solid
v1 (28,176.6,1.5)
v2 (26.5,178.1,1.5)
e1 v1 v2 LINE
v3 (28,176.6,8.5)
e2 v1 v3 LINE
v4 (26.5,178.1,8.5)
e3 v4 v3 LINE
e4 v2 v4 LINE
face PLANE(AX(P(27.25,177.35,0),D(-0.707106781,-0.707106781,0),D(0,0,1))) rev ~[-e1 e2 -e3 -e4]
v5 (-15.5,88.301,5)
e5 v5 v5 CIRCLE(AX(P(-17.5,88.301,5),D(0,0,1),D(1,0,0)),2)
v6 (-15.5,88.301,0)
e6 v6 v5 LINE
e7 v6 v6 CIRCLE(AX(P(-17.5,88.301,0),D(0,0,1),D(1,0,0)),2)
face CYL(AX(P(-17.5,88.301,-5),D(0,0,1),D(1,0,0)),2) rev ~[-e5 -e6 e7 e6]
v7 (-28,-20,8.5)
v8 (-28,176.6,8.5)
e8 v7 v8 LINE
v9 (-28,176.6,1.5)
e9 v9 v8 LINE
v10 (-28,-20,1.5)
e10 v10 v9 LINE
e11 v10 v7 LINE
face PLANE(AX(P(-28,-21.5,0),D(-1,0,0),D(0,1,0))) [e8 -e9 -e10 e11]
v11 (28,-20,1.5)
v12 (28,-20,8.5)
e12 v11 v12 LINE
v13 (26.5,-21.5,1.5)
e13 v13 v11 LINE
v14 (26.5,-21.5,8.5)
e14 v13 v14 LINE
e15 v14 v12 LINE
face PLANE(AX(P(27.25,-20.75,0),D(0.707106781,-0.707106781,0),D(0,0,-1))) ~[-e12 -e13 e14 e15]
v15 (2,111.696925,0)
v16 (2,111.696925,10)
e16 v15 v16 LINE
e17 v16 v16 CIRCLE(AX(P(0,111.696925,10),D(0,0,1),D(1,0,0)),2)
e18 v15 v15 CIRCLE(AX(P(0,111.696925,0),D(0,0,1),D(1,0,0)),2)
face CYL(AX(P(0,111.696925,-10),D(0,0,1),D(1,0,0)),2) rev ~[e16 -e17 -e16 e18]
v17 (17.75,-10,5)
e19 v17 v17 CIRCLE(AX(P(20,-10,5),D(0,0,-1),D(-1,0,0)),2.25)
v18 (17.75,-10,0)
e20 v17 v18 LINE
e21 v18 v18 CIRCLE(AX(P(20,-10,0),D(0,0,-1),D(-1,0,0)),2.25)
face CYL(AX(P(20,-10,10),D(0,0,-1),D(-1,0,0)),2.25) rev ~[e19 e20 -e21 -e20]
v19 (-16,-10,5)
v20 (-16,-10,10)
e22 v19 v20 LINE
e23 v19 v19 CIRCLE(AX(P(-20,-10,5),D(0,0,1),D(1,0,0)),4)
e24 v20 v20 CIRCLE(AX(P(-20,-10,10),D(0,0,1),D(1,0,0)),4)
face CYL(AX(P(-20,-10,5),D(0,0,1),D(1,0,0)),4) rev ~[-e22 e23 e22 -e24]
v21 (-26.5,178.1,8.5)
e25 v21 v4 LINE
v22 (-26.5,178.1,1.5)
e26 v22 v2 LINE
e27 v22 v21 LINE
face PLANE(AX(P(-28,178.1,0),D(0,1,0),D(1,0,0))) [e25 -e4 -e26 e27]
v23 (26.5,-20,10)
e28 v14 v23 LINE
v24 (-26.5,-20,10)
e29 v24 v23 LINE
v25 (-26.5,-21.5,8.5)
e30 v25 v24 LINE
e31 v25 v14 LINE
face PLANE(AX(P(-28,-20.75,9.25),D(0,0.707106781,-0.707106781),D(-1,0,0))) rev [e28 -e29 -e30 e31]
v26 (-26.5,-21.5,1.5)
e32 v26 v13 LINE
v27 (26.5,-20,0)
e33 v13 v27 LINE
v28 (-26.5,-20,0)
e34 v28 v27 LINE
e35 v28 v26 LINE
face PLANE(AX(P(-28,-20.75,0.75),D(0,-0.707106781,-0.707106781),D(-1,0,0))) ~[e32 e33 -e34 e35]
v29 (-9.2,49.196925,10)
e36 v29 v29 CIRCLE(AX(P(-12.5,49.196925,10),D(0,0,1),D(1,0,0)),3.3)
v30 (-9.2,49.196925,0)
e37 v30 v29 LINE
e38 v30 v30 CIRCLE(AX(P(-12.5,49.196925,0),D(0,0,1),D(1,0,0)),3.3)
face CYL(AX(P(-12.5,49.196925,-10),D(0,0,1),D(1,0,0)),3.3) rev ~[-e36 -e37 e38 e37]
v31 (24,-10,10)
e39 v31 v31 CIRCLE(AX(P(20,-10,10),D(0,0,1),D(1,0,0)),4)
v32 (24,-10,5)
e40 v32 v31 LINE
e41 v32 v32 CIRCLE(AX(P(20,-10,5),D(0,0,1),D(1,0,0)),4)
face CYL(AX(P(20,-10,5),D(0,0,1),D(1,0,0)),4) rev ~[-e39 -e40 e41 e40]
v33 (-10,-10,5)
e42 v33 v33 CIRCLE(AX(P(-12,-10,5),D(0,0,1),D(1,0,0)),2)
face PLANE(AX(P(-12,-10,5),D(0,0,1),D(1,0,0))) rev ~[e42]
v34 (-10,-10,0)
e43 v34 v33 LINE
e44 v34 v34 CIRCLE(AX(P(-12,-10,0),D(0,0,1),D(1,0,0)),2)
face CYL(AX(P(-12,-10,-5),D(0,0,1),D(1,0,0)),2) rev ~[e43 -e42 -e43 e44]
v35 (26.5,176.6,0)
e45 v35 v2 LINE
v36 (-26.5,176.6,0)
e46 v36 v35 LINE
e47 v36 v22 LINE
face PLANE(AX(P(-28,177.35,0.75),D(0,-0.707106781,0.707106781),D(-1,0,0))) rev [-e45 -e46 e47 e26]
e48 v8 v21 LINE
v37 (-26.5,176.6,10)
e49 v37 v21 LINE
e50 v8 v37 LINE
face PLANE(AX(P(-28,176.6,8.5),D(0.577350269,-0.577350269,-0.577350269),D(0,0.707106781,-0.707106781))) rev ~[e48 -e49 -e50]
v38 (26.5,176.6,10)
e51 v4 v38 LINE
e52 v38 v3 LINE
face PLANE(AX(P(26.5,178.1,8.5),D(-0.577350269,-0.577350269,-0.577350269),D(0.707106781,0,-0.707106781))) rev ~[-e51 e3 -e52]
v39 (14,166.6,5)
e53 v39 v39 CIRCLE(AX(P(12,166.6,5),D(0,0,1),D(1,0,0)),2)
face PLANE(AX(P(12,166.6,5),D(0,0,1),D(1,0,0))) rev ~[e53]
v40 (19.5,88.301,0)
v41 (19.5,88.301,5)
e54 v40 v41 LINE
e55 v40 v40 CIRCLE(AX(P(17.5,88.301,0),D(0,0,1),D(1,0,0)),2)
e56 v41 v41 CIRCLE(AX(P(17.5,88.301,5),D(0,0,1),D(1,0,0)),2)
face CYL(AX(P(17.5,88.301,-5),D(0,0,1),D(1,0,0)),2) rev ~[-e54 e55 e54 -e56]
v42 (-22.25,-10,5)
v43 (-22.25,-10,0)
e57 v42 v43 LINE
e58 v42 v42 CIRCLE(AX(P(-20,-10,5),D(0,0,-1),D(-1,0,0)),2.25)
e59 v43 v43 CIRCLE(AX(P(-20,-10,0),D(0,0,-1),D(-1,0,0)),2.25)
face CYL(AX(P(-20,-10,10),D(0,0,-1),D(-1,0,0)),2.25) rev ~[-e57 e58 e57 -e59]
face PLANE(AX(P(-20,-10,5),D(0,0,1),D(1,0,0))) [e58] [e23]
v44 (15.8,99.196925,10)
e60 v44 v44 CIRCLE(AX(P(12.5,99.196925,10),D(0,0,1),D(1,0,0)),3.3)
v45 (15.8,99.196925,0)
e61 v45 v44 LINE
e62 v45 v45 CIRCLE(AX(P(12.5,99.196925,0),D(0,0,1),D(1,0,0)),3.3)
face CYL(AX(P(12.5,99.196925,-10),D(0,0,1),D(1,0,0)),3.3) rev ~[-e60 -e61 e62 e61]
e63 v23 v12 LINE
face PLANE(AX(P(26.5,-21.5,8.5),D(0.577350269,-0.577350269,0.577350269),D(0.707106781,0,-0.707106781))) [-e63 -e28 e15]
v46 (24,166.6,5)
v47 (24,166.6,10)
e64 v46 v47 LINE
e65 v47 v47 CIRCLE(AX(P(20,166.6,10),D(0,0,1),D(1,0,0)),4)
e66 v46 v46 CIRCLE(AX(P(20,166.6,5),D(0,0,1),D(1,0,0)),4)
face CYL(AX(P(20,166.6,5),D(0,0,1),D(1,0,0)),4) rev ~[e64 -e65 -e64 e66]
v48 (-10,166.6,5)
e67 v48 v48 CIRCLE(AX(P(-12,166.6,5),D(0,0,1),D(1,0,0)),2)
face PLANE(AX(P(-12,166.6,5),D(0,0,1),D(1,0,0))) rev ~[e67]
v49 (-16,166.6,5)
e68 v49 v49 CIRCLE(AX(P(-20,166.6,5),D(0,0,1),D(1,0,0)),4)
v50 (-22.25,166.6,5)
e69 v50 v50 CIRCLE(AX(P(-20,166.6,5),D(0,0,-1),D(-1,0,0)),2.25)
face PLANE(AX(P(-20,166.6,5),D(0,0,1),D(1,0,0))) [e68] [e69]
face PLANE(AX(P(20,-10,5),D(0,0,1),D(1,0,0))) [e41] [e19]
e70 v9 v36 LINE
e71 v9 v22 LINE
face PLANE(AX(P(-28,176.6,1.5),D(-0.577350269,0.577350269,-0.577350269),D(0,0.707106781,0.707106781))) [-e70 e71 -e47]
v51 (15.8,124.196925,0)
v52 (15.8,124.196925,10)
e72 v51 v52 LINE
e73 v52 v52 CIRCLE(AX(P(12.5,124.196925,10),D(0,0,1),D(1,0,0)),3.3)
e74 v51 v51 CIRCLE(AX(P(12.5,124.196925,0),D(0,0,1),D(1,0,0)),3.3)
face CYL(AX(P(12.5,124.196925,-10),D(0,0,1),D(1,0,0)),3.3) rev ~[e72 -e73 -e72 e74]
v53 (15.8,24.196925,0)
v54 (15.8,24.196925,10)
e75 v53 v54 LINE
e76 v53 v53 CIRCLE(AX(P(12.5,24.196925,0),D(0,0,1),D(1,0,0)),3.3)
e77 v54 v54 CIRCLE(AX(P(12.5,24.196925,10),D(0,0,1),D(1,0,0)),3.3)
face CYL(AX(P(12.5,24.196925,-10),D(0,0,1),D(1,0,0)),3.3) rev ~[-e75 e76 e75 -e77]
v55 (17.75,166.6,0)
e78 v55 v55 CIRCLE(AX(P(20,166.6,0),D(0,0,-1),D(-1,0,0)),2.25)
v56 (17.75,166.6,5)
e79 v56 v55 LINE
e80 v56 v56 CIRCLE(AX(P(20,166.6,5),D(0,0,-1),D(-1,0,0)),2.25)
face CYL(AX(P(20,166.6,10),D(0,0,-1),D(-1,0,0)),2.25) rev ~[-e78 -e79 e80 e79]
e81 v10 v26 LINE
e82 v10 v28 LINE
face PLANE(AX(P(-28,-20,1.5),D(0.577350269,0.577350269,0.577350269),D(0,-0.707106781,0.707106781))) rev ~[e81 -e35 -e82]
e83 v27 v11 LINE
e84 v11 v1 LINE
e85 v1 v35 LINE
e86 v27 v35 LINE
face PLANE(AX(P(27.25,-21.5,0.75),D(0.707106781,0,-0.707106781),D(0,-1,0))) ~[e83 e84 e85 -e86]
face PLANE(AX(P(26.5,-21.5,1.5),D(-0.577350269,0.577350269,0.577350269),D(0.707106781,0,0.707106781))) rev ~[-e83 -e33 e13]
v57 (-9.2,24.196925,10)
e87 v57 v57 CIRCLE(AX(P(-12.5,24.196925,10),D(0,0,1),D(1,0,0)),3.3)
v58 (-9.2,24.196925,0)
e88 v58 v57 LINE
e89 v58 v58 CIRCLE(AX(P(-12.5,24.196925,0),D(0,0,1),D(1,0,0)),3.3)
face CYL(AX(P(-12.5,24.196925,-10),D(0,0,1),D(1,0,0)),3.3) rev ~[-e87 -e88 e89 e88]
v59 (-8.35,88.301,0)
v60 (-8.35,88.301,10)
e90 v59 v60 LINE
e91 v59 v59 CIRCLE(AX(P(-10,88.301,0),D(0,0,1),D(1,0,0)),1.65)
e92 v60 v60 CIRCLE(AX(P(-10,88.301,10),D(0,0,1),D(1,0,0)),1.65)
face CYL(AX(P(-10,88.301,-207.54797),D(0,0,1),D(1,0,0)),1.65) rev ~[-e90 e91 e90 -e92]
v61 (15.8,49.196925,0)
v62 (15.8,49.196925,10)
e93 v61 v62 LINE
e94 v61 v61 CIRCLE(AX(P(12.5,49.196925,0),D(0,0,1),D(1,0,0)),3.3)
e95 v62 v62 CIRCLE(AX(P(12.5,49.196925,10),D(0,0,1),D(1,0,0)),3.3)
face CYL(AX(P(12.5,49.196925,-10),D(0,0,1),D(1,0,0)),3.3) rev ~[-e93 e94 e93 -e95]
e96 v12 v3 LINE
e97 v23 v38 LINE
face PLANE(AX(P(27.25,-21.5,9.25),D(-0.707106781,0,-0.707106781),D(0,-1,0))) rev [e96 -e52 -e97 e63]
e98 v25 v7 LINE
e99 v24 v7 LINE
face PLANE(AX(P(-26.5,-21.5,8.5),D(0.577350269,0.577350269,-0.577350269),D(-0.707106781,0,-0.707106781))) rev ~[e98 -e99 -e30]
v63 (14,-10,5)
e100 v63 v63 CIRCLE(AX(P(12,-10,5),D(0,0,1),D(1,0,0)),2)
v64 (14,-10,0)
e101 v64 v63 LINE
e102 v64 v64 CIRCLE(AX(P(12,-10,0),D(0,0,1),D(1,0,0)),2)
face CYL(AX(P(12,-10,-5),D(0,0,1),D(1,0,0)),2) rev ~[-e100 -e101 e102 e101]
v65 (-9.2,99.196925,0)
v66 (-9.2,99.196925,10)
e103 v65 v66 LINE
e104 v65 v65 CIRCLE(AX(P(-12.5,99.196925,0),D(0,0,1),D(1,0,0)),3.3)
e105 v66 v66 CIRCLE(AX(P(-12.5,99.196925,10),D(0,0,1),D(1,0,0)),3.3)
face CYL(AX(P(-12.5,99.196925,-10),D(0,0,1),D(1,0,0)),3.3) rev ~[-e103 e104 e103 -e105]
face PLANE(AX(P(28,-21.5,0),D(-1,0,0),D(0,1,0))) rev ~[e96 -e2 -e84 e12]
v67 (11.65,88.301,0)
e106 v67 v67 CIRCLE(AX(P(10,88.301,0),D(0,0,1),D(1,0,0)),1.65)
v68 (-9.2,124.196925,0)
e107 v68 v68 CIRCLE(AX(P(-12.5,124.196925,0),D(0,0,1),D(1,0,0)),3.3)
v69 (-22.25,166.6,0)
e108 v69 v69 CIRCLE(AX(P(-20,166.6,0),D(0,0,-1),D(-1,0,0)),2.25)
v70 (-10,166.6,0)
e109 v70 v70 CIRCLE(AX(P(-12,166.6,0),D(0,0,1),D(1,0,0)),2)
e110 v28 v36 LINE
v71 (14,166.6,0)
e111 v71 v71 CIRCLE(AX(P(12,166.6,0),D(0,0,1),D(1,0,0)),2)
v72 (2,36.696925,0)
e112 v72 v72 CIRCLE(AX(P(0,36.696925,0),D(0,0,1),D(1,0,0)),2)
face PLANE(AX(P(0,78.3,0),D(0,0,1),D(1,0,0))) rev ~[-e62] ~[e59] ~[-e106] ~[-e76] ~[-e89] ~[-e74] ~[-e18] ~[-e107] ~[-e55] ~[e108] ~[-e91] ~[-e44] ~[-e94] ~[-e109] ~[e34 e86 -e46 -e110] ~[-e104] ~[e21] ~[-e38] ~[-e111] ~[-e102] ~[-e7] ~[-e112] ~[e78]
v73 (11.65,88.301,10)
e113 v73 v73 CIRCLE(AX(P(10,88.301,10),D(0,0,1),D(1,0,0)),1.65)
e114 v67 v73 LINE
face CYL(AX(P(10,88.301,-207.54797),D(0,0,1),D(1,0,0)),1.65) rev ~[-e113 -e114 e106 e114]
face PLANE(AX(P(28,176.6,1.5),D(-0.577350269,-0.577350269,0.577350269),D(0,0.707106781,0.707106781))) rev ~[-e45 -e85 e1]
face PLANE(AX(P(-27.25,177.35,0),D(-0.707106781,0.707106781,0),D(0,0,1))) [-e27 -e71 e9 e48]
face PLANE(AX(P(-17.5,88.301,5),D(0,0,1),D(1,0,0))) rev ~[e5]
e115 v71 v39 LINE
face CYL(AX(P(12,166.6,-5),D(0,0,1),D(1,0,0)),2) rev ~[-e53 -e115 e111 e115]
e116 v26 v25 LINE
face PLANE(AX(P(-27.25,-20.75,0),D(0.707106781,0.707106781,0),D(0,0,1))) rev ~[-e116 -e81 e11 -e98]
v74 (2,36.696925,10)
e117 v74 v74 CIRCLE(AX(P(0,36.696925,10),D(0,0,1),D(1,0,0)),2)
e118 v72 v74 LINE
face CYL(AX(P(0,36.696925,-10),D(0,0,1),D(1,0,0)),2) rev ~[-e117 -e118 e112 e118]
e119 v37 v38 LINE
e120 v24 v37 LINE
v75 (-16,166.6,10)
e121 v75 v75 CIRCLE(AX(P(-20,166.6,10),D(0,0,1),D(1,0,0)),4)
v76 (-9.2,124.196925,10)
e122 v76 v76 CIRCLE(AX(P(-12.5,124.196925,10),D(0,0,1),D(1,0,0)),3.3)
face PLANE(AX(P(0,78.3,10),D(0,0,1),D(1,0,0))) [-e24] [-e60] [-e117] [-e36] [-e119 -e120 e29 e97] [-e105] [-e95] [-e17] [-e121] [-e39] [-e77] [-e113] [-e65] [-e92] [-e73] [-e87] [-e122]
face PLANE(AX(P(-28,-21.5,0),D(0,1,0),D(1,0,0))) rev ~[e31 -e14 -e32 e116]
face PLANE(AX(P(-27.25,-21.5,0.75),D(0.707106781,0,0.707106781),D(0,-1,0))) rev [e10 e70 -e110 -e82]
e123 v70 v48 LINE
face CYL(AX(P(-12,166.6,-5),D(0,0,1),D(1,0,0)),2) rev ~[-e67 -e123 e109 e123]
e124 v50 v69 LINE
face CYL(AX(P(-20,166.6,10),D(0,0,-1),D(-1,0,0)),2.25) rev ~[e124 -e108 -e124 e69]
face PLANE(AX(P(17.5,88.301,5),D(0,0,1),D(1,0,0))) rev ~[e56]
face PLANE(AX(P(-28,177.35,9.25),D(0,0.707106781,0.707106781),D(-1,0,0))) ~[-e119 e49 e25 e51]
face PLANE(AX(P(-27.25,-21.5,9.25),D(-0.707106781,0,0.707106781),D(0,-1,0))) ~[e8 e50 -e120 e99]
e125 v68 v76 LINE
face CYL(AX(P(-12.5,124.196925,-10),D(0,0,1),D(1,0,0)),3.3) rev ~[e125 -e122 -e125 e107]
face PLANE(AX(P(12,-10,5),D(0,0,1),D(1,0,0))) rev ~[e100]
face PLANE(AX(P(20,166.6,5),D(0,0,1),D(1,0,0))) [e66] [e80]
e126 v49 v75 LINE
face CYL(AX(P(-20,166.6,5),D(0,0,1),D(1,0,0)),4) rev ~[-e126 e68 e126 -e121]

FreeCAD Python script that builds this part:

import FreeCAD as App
import Part
import Sketcher


def add_polygon(sketch, points):
    """Adds a closed chain of lines whose ends are joined by coincident constraints."""
    first, n = sketch.GeometryCount, len(points)
    for a, b in zip(points, points[1:] + points[:1]):
        sketch.addGeometry(Part.LineSegment(App.Vector(*a, 0), App.Vector(*b, 0)), False)
    for i in range(n):
        sketch.addConstraint(Sketcher.Constraint("Coincident", first + i, 2, first + (i + 1) % n, 1))

doc = App.newDocument("Part")
body = doc.addObject("PartDesign::Body", "Body")

sketch1 = doc.addObject("Sketcher::SketchObject", "Sketch")
body.addObject(sketch1)
sketch1.AttachmentSupport = (doc.XY_Plane, [""])
sketch1.MapMode = "FlatFace"
add_polygon(sketch1, [(-28, 178), (-28, -22), (28, -22), (28, 178)])
sketch1.addConstraint(Sketcher.Constraint("Vertical", 0))
sketch1.addConstraint(Sketcher.Constraint("Horizontal", 1))
sketch1.addConstraint(Sketcher.Constraint("Vertical", 2))
sketch1.addConstraint(Sketcher.Constraint("Horizontal", 3))
sketch1.addConstraint(Sketcher.Constraint("DistanceX", 1, 1, 1, 2, 56.0))
sketch1.addConstraint(Sketcher.Constraint("DistanceY", 0, 2, 0, 1, 199.6))
sketch1.addConstraint(Sketcher.Constraint("DistanceX", 0, 2, -1, 1, 28.0))
sketch1.addConstraint(Sketcher.Constraint("DistanceY", 0, 2, -1, 1, 21.5))
pad1 = doc.addObject("PartDesign::Pad", "Pad")
body.addObject(pad1)
pad1.Profile = sketch1
pad1.Length = 10
doc.recompute()

chamfer = doc.addObject("PartDesign::Chamfer", "Chamfer")
body.addObject(chamfer)
chamfer.Base = (pad1, ["Edge1"])
chamfer.UseAllEdges = True
chamfer.Size = 1.5

sketch2 = doc.addObject("Sketcher::SketchObject", "Sketch001")
body.addObject(sketch2)
sketch2.AttachmentSupport = (doc.XY_Plane, [""])
sketch2.MapMode = "FlatFace"
sketch2.addGeometry(Part.Circle(App.Vector(12, -10, 0), App.Vector(0, 0, 1), 2), False)
sketch2.addGeometry(Part.Circle(App.Vector(-12, -10, 0), App.Vector(0, 0, 1), 2), False)
sketch2.addGeometry(Part.Circle(App.Vector(12, 166.6, 0), App.Vector(0, 0, 1), 2), False)
sketch2.addGeometry(Part.Circle(App.Vector(-12, 166.6, 0), App.Vector(0, 0, 1), 2), False)
sketch2.addConstraint(Sketcher.Constraint("Equal", 0, 1))
sketch2.addConstraint(Sketcher.Constraint("Equal", 1, 2))
sketch2.addConstraint(Sketcher.Constraint("Equal", 2, 3))
sketch2.addConstraint(Sketcher.Constraint("Symmetric", 0, 3, 1, 3, -2))
sketch2.addConstraint(Sketcher.Constraint("Symmetric", 2, 3, 3, 3, -2))
sketch2.addConstraint(Sketcher.Constraint("Vertical", 0, 3, 2, 3))
sketch2.addConstraint(Sketcher.Constraint("Diameter", 0, 4.0))
sketch2.addConstraint(Sketcher.Constraint("DistanceX", -1, 1, 0, 3, 12.0))
sketch2.addConstraint(Sketcher.Constraint("DistanceY", 0, 3, -1, 1, 10.0))
sketch2.addConstraint(Sketcher.Constraint("DistanceY", -1, 1, 2, 3, 166.6))
doc.recompute()
hole = doc.addObject("PartDesign::Hole", "Hole")
body.addObject(hole)
hole.Profile = sketch2
hole.ThreadType = "None"
hole.Diameter = 4
hole.DepthType = "Dimension"
hole.Depth = 5
hole.DrillPoint = "Flat"
hole.Reversed = True

sketch3 = doc.addObject("Sketcher::SketchObject", "Sketch002")
body.addObject(sketch3)
sketch3.AttachmentSupport = (doc.XY_Plane, [""])
sketch3.MapMode = "FlatFace"
sketch3.addGeometry(Part.Circle(App.Vector(12.5, 99.2, 0), App.Vector(0, 0, 1), 3.3), False)
sketch3.addGeometry(Part.Circle(App.Vector(-12.5, 124.2, 0), App.Vector(0, 0, 1), 3.3), False)
sketch3.addGeometry(Part.Circle(App.Vector(12.5, 124.2, 0), App.Vector(0, 0, 1), 3.3), False)
sketch3.addGeometry(Part.Circle(App.Vector(-12.5, 99.2, 0), App.Vector(0, 0, 1), 3.3), False)
sketch3.addGeometry(Part.Circle(App.Vector(12.5, 49.2, 0), App.Vector(0, 0, 1), 3.3), False)
sketch3.addGeometry(Part.Circle(App.Vector(-12.5, 49.2, 0), App.Vector(0, 0, 1), 3.3), False)
sketch3.addGeometry(Part.Circle(App.Vector(-12.5, 24.2, 0), App.Vector(0, 0, 1), 3.3), False)
sketch3.addGeometry(Part.Circle(App.Vector(12.5, 24.2, 0), App.Vector(0, 0, 1), 3.3), False)
sketch3.addConstraint(Sketcher.Constraint("Equal", 0, 1))
sketch3.addConstraint(Sketcher.Constraint("Equal", 1, 2))
sketch3.addConstraint(Sketcher.Constraint("Equal", 2, 3))
sketch3.addConstraint(Sketcher.Constraint("Equal", 3, 4))
sketch3.addConstraint(Sketcher.Constraint("Equal", 4, 5))
sketch3.addConstraint(Sketcher.Constraint("Equal", 5, 6))
sketch3.addConstraint(Sketcher.Constraint("Equal", 6, 7))
sketch3.addConstraint(Sketcher.Constraint("Symmetric", 1, 3, 2, 3, -2))
sketch3.addConstraint(Sketcher.Constraint("Symmetric", 0, 3, 3, 3, -2))
sketch3.addConstraint(Sketcher.Constraint("Symmetric", 4, 3, 5, 3, -2))
sketch3.addConstraint(Sketcher.Constraint("Symmetric", 6, 3, 7, 3, -2))
sketch3.addConstraint(Sketcher.Constraint("Vertical", 0, 3, 2, 3))
sketch3.addConstraint(Sketcher.Constraint("Vertical", 2, 3, 4, 3))
sketch3.addConstraint(Sketcher.Constraint("Vertical", 5, 3, 6, 3))
sketch3.addConstraint(Sketcher.Constraint("Diameter", 0, 6.6))
sketch3.addConstraint(Sketcher.Constraint("DistanceX", 1, 3, 0, 3, 25.0))
sketch3.addConstraint(Sketcher.Constraint("DistanceY", 0, 3, 1, 3, 25.0))
sketch3.addConstraint(Sketcher.Constraint("DistanceY", 4, 3, 0, 3, 50.0))
sketch3.addConstraint(Sketcher.Constraint("DistanceY", 6, 3, 5, 3, 25.0))
sketch3.addConstraint(Sketcher.Constraint("DistanceY", -1, 1, 0, 3, 99.196925))
doc.recompute()
hole2 = doc.addObject("PartDesign::Hole", "Hole001")
body.addObject(hole2)
hole2.Profile = sketch3
hole2.ThreadType = "None"
hole2.Diameter = 6.6
hole2.DepthType = "Dimension"
hole2.Depth = 10
hole2.DrillPoint = "Flat"
hole2.Reversed = True

sketch4 = doc.addObject("Sketcher::SketchObject", "Sketch003")
body.addObject(sketch4)
sketch4.AttachmentSupport = (doc.XY_Plane, [""])
sketch4.MapMode = "FlatFace"
sketch4.addGeometry(Part.Circle(App.Vector(0, 111.7, 0), App.Vector(0, 0, 1), 2), False)
sketch4.addGeometry(Part.Circle(App.Vector(0, 36.7, 0), App.Vector(0, 0, 1), 2), False)
sketch4.addConstraint(Sketcher.Constraint("Equal", 0, 1))
sketch4.addConstraint(Sketcher.Constraint("PointOnObject", 0, 3, -2))
sketch4.addConstraint(Sketcher.Constraint("PointOnObject", 1, 3, -2))
sketch4.addConstraint(Sketcher.Constraint("Diameter", 0, 4.0))
sketch4.addConstraint(Sketcher.Constraint("DistanceY", 1, 3, 0, 3, 75.0))
sketch4.addConstraint(Sketcher.Constraint("DistanceY", -1, 1, 0, 3, 111.696925))
doc.recompute()
hole3 = doc.addObject("PartDesign::Hole", "Hole002")
body.addObject(hole3)
hole3.Profile = sketch4
hole3.ThreadType = "None"
hole3.Diameter = 4
hole3.DepthType = "Dimension"
hole3.Depth = 10
hole3.DrillPoint = "Flat"
hole3.Reversed = True

sketch5 = doc.addObject("Sketcher::SketchObject", "Sketch004")
body.addObject(sketch5)
sketch5.AttachmentSupport = (doc.XY_Plane, [""])
sketch5.MapMode = "FlatFace"
sketch5.addGeometry(Part.Circle(App.Vector(-17.5, 88.3, 0), App.Vector(0, 0, 1), 2), False)
sketch5.addGeometry(Part.Circle(App.Vector(17.5, 88.3, 0), App.Vector(0, 0, 1), 2), False)
sketch5.addConstraint(Sketcher.Constraint("Equal", 0, 1))
sketch5.addConstraint(Sketcher.Constraint("Symmetric", 0, 3, 1, 3, -2))
sketch5.addConstraint(Sketcher.Constraint("Diameter", 0, 4.0))
sketch5.addConstraint(Sketcher.Constraint("DistanceX", 0, 3, 1, 3, 35.0))
sketch5.addConstraint(Sketcher.Constraint("DistanceY", -1, 1, 0, 3, 88.301))
doc.recompute()
hole4 = doc.addObject("PartDesign::Hole", "Hole003")
body.addObject(hole4)
hole4.Profile = sketch5
hole4.ThreadType = "None"
hole4.Diameter = 4
hole4.DepthType = "Dimension"
hole4.Depth = 5
hole4.DrillPoint = "Flat"
hole4.Reversed = True

sketch6 = doc.addObject("Sketcher::SketchObject", "Sketch005")
body.addObject(sketch6)
sketch6.AttachmentSupport = (doc.XY_Plane, [""])
sketch6.MapMode = "FlatFace"
sketch6.addGeometry(Part.Circle(App.Vector(-10, 88.3, 0), App.Vector(0, 0, 1), 1.6), False)
sketch6.addGeometry(Part.Circle(App.Vector(10, 88.3, 0), App.Vector(0, 0, 1), 1.6), False)
sketch6.addConstraint(Sketcher.Constraint("Equal", 0, 1))
sketch6.addConstraint(Sketcher.Constraint("Symmetric", 0, 3, 1, 3, -2))
sketch6.addConstraint(Sketcher.Constraint("Diameter", 0, 3.3))
sketch6.addConstraint(Sketcher.Constraint("DistanceX", 0, 3, -1, 1, 10.0))
sketch6.addConstraint(Sketcher.Constraint("DistanceY", -1, 1, 0, 3, 88.301))
doc.recompute()
hole5 = doc.addObject("PartDesign::Hole", "Hole004")
body.addObject(hole5)
hole5.Profile = sketch6
hole5.ThreadType = "None"
hole5.Diameter = 3.3
hole5.DepthType = "ThroughAll"
hole5.Reversed = True

sketch7 = doc.addObject("Sketcher::SketchObject", "Sketch006")
body.addObject(sketch7)
sketch7.AttachmentSupport = (doc.XY_Plane, [""])
sketch7.MapMode = "FlatFace"
sketch7.AttachmentOffset = App.Placement(App.Vector(0, 0, 10), App.Rotation())
sketch7.addGeometry(Part.Circle(App.Vector(20, -10, 0), App.Vector(0, 0, 1), 2.2), False)
sketch7.addGeometry(Part.Circle(App.Vector(-20, -10, 0), App.Vector(0, 0, 1), 2.2), False)
sketch7.addGeometry(Part.Circle(App.Vector(20, 166.6, 0), App.Vector(0, 0, 1), 2.2), False)
sketch7.addGeometry(Part.Circle(App.Vector(-20, 166.6, 0), App.Vector(0, 0, 1), 2.2), False)
sketch7.addConstraint(Sketcher.Constraint("Equal", 0, 1))
sketch7.addConstraint(Sketcher.Constraint("Equal", 1, 2))
sketch7.addConstraint(Sketcher.Constraint("Equal", 2, 3))
sketch7.addConstraint(Sketcher.Constraint("Symmetric", 0, 3, 1, 3, -2))
sketch7.addConstraint(Sketcher.Constraint("Symmetric", 2, 3, 3, 3, -2))
sketch7.addConstraint(Sketcher.Constraint("Vertical", 0, 3, 2, 3))
sketch7.addConstraint(Sketcher.Constraint("Diameter", 0, 4.5))
sketch7.addConstraint(Sketcher.Constraint("DistanceX", -1, 1, 0, 3, 20.0))
sketch7.addConstraint(Sketcher.Constraint("DistanceY", 0, 3, -1, 1, 10.0))
sketch7.addConstraint(Sketcher.Constraint("DistanceY", -1, 1, 2, 3, 166.6))
doc.recompute()
hole6 = doc.addObject("PartDesign::Hole", "Hole005")
body.addObject(hole6)
hole6.Profile = sketch7
hole6.ThreadType = "None"
hole6.Diameter = 4.5
hole6.DepthType = "ThroughAll"
hole6.HoleCutType = "Counterbore"
hole6.HoleCutDiameter = 8
hole6.HoleCutDepth = 5

doc.recompute()
